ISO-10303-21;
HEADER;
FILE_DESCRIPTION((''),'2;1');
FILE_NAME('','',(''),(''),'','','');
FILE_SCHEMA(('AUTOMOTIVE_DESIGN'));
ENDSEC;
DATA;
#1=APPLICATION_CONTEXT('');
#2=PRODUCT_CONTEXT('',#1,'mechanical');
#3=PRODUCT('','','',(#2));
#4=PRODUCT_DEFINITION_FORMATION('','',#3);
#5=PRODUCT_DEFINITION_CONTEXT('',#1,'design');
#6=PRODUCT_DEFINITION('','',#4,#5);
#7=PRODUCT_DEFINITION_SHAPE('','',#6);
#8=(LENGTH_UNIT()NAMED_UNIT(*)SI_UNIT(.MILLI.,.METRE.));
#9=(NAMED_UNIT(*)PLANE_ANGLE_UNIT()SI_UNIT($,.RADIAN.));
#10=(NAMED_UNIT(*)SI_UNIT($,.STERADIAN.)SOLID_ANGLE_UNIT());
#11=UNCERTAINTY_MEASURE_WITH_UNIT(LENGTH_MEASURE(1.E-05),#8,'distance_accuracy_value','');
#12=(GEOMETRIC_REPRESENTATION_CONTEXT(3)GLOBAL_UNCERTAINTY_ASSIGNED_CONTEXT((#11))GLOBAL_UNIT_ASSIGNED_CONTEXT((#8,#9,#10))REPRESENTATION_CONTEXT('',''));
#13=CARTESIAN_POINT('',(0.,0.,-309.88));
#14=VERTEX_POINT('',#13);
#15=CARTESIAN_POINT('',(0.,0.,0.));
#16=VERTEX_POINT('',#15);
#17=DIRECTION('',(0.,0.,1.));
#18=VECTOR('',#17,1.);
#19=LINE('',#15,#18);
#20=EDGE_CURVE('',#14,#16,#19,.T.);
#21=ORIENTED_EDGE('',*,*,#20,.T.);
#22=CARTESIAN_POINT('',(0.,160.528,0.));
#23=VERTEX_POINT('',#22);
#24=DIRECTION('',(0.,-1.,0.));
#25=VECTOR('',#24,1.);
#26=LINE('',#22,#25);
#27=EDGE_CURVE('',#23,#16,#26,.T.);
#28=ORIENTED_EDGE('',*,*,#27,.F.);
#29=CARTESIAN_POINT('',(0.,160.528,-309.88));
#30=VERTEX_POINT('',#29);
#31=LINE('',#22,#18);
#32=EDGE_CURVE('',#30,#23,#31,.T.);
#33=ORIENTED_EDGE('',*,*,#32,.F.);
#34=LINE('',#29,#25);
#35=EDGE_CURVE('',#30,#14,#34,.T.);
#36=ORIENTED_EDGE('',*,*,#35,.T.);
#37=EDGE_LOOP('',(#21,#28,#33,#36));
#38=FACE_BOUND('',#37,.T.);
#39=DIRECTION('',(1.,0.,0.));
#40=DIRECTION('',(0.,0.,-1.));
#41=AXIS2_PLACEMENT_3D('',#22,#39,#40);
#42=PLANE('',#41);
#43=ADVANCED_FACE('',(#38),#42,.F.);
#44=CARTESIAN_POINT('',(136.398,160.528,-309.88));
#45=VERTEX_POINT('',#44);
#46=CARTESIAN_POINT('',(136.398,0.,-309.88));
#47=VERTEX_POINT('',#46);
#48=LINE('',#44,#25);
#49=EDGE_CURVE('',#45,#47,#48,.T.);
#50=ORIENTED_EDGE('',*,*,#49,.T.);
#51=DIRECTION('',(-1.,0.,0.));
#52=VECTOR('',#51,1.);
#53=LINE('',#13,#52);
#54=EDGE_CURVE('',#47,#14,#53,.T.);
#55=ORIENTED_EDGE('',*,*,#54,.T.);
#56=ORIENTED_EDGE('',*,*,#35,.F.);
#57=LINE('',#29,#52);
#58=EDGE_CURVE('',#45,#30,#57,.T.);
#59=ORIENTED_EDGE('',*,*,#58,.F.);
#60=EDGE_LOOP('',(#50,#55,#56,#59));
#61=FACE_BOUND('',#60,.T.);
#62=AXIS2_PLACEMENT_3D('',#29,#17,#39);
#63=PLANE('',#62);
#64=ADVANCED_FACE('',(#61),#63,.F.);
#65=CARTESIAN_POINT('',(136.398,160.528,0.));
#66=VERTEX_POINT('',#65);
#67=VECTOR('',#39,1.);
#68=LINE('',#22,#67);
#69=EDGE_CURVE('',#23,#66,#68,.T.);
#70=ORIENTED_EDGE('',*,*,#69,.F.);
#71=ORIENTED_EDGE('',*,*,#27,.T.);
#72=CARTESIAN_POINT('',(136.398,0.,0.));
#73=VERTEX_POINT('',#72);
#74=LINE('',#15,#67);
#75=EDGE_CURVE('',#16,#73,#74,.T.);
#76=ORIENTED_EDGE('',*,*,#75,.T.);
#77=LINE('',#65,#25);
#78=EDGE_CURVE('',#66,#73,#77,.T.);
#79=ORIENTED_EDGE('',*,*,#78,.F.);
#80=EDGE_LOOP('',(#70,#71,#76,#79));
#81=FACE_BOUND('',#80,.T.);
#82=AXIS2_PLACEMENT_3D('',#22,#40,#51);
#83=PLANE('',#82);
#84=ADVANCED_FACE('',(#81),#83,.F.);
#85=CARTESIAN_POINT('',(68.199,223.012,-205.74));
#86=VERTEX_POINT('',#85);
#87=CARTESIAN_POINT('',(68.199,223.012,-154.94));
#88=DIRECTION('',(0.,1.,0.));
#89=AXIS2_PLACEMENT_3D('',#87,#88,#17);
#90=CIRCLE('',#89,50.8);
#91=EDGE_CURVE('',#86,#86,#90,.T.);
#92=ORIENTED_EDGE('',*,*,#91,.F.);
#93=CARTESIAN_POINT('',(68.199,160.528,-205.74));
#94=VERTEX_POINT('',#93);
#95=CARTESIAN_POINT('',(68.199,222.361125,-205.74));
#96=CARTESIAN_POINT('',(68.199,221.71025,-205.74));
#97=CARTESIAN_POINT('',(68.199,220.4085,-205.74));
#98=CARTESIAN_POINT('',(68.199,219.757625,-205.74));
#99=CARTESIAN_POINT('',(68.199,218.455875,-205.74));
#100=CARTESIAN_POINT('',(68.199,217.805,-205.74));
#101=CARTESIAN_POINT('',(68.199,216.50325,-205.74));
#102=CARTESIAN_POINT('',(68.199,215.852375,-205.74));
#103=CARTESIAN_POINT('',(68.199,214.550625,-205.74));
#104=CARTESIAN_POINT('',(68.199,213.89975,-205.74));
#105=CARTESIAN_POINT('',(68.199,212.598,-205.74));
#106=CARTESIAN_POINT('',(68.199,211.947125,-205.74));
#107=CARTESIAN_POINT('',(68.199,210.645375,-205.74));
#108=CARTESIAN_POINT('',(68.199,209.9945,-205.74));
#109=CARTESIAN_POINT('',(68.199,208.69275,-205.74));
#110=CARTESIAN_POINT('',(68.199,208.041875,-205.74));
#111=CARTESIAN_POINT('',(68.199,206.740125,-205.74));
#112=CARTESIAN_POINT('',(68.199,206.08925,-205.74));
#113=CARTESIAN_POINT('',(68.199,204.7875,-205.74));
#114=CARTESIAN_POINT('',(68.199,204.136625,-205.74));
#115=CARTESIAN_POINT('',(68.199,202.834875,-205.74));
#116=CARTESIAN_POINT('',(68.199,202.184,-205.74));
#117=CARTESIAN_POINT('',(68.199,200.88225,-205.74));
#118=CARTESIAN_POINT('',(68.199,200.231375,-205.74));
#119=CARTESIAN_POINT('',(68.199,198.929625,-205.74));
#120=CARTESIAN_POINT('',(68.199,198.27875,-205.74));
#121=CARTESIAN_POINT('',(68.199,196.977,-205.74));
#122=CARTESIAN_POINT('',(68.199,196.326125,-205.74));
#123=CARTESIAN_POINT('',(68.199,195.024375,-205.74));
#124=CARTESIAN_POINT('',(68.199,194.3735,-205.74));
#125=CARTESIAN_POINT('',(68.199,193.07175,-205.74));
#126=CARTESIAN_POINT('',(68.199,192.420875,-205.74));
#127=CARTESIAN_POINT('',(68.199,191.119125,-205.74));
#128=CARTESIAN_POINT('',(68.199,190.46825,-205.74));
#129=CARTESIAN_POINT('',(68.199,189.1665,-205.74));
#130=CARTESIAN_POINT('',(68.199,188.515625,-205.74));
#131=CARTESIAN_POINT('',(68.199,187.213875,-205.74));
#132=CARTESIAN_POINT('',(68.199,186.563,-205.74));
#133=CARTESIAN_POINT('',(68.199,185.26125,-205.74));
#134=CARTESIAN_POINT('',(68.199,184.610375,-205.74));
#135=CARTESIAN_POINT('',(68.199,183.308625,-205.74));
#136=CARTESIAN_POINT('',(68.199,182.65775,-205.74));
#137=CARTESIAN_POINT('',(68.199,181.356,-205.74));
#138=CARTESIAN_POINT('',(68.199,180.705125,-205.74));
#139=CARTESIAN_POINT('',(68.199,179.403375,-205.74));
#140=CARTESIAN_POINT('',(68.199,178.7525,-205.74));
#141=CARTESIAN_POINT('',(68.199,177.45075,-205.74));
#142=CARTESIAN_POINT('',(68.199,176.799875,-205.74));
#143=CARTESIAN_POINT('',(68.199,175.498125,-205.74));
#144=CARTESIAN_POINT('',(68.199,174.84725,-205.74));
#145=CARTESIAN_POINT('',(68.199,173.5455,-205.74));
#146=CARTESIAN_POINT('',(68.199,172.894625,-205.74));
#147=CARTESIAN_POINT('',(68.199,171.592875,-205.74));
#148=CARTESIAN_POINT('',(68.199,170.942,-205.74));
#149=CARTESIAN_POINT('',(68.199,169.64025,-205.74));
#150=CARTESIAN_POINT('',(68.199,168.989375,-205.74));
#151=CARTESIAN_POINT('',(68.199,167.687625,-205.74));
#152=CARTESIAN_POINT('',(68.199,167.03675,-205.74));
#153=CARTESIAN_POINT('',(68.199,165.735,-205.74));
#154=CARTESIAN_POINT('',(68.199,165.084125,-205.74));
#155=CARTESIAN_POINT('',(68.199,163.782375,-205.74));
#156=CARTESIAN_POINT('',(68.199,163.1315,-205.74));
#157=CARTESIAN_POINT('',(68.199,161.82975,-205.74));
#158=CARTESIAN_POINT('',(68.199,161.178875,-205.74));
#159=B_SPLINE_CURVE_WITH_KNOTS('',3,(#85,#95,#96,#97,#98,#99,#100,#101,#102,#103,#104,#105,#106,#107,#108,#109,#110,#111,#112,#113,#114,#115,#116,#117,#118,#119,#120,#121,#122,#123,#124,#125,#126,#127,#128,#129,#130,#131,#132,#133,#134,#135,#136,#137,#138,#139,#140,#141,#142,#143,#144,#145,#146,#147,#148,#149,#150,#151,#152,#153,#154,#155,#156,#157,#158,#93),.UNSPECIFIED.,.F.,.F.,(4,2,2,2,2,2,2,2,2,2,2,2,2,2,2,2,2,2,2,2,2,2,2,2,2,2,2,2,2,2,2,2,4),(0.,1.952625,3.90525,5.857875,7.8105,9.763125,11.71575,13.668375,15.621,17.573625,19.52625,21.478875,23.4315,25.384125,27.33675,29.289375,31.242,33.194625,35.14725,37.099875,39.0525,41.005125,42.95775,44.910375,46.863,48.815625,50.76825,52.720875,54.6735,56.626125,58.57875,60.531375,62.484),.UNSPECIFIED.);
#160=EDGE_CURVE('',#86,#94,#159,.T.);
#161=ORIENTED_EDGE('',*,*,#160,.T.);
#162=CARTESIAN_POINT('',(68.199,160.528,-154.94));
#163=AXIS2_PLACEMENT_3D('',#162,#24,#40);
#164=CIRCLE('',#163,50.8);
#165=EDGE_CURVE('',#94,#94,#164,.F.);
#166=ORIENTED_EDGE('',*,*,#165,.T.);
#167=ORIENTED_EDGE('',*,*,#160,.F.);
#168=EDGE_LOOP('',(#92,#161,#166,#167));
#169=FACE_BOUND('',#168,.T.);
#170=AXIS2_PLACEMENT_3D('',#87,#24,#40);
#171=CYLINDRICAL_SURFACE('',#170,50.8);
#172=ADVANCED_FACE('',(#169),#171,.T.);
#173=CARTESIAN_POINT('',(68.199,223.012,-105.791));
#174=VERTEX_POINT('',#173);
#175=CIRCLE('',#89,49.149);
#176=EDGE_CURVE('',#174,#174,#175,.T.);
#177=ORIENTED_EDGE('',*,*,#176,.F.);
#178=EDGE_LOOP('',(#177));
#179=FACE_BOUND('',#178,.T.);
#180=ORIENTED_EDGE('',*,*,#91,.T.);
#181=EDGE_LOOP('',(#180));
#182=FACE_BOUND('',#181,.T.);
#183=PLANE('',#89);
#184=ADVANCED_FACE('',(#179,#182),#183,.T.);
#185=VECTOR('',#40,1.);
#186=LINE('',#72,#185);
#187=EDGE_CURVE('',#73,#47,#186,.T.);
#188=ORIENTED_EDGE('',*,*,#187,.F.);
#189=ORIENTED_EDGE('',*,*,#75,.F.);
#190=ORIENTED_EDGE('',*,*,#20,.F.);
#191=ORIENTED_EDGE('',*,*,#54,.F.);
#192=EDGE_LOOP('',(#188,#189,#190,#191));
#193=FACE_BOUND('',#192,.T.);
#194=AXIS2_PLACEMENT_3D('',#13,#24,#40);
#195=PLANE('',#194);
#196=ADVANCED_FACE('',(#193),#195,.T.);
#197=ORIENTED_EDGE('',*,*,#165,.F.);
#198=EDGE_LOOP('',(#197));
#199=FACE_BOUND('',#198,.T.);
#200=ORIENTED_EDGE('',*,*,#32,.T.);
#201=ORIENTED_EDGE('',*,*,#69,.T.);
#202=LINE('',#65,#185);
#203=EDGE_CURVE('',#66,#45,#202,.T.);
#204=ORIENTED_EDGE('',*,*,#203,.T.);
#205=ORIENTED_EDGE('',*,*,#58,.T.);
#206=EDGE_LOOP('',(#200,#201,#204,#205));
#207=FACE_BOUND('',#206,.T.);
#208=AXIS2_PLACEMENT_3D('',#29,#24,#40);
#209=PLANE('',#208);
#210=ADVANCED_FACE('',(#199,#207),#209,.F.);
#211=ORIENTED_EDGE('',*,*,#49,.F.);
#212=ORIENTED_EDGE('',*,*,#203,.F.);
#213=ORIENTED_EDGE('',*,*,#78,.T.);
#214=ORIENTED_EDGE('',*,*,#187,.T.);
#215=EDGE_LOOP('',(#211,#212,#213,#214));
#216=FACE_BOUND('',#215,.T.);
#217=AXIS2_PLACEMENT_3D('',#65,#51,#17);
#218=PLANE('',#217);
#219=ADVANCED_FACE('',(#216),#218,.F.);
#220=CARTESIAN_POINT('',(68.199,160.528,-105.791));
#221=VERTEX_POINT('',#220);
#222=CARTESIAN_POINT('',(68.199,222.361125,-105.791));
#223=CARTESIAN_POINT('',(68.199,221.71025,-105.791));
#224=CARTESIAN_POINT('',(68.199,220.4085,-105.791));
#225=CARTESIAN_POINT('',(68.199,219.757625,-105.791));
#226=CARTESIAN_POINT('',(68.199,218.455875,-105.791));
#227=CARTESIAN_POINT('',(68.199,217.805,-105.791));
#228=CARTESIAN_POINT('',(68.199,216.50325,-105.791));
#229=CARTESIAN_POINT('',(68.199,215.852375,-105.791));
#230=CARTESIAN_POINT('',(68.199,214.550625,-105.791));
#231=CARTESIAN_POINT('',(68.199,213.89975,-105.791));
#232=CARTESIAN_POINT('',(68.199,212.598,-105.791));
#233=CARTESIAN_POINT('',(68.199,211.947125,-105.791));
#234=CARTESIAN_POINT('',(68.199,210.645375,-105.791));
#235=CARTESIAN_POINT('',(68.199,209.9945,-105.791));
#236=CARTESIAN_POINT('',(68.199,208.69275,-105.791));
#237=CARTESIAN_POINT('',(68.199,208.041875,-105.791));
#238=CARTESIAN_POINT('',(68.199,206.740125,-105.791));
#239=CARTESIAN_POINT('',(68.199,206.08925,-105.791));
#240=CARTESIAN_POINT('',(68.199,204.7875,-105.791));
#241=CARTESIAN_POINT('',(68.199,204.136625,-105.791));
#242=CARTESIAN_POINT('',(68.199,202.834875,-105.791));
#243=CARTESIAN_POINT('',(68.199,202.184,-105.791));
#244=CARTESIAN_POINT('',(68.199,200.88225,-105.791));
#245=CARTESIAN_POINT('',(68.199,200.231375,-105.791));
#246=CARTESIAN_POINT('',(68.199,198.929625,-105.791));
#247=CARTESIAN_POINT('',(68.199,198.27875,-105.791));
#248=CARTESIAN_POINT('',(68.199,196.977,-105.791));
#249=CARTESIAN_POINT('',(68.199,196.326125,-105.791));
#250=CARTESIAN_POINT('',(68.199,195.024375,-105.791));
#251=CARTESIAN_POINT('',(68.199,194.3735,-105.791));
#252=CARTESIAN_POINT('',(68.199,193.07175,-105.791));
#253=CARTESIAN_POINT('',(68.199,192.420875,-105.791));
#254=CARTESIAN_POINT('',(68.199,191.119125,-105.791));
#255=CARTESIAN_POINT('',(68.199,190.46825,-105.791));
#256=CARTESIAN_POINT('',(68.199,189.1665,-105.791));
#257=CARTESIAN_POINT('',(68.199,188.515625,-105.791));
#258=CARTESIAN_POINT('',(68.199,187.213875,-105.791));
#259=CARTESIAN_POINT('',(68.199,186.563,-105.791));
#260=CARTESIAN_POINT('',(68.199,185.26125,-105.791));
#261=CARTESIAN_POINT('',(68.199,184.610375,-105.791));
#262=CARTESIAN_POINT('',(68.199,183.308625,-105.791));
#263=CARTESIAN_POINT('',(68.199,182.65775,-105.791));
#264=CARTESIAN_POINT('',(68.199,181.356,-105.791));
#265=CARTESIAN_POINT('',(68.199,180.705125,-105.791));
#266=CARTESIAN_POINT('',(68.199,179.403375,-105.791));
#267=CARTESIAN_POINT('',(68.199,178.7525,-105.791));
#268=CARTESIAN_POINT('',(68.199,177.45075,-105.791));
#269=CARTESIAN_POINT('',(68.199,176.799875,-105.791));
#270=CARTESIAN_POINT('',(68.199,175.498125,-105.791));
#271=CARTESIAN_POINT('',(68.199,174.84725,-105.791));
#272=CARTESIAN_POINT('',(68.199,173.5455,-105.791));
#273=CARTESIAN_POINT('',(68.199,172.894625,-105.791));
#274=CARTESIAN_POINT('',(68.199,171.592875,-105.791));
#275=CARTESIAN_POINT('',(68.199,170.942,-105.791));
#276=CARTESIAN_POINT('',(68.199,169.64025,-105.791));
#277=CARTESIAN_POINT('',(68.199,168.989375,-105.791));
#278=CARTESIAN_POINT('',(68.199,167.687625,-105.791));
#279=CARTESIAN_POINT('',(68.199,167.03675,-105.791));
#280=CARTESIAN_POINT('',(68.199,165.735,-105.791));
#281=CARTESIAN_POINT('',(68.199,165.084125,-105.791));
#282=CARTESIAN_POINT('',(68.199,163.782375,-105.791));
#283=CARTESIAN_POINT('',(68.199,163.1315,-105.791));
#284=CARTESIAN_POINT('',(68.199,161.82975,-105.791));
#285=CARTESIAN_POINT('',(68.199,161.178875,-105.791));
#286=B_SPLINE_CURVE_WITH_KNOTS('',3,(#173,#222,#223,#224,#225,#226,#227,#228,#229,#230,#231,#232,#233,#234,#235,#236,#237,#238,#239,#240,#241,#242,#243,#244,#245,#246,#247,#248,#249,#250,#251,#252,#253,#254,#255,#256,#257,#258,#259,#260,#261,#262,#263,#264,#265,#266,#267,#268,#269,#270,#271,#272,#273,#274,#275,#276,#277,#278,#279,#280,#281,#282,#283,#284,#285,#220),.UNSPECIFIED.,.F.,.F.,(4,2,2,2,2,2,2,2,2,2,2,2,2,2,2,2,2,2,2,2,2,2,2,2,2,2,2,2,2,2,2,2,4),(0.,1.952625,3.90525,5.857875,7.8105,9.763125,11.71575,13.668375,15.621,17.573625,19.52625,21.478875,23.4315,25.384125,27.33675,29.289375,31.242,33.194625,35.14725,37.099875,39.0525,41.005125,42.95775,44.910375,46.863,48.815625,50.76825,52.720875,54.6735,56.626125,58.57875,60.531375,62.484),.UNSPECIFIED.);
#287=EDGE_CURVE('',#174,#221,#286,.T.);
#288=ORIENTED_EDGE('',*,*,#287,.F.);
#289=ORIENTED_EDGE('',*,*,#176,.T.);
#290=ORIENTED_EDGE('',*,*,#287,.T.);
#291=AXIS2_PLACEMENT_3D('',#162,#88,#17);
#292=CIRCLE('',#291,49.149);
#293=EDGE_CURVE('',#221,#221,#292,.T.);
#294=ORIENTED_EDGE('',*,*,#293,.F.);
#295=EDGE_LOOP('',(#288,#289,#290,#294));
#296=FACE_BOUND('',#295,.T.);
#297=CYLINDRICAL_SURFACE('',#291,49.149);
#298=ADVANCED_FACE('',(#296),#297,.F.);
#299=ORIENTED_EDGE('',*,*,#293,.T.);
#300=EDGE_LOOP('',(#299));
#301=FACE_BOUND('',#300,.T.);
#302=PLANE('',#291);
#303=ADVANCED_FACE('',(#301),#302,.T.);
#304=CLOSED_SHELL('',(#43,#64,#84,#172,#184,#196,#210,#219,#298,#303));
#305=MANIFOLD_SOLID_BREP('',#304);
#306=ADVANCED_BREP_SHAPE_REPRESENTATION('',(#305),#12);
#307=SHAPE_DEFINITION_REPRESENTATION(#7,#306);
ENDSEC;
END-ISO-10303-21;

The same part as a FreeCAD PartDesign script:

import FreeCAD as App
import Part
import Sketcher
from FreeCAD import Vector
Q = App.Units.Quantity

doc = App.newDocument("Part")
body = doc.addObject("PartDesign::Body", "Body")

sketch1 = body.newObject("Sketcher::SketchObject", "Sketch")
sketch1.AttachmentSupport = (doc.getObject("XZ_Plane"), [""])
sketch1.MapMode = "FlatFace"
sketch1.addGeometry([
    Part.LineSegment(Vector(0, -309.88, 0), Vector(0, 0, 0)),
    Part.LineSegment(Vector(0, 0, 0), Vector(136.398, 0, 0)),
    Part.LineSegment(Vector(136.398, 0, 0), Vector(136.398, -309.88, 0)),
    Part.LineSegment(Vector(136.398, -309.88, 0), Vector(0, -309.88, 0)),
], False)
sketch1.addConstraint([
    Sketcher.Constraint("Coincident", 0, 2, 1, 1),
    Sketcher.Constraint("Coincident", 1, 2, 2, 1),
    Sketcher.Constraint("Coincident", 2, 2, 3, 1),
    Sketcher.Constraint("Coincident", 3, 2, 0, 1),
    Sketcher.Constraint("Vertical", 0),
    Sketcher.Constraint("Horizontal", 1),
    Sketcher.Constraint("Vertical", 2),
    Sketcher.Constraint("Horizontal", 3),
    Sketcher.Constraint("Coincident", 0, 2, -1, 1),
    Sketcher.Constraint("DistanceY", 0, 1, 0, 2, Q("12.2 in")),
    Sketcher.Constraint("DistanceX", 1, 1, 1, 2, Q("5.37 in")),
])
pad1 = body.newObject("PartDesign::Pad", "Pad")
pad1.Profile = sketch1
pad1.Length = Q("6.32 in")
pad1.Reversed = True

sketch2 = body.newObject("Sketcher::SketchObject", "Sketch001")
sketch2.AttachmentSupport = (doc.getObject("XZ_Plane"), [""])
sketch2.MapMode = "FlatFace"
sketch2.AttachmentOffset = App.Placement(Vector(0, 0, -6.32 * 25.4), App.Rotation())
sketch2.addGeometry(Part.Circle(Vector(68.199, -154.94, 0), Vector(0, 0, 1), 50.8), False)
sketch2.addConstraint([
    Sketcher.Constraint("Diameter", 0, Q("4 in")),
    Sketcher.Constraint("DistanceY", 0, 3, -1, 1, Q("6.1 in")),
    Sketcher.Constraint("DistanceX", -1, 1, 0, 3, Q("2.685 in")),
])
pad2 = body.newObject("PartDesign::Pad", "Pad001")
pad2.Profile = sketch2
pad2.Length = Q("2.46 in")
pad2.Reversed = True

sketch3 = body.newObject("Sketcher::SketchObject", "Sketch002")
sketch3.AttachmentSupport = (doc.getObject("XZ_Plane"), [""])
sketch3.MapMode = "FlatFace"
sketch3.AttachmentOffset = App.Placement(Vector(0, 0, -8.78 * 25.4), App.Rotation())
sketch3.addGeometry(Part.Circle(Vector(68.199, -154.94, 0), Vector(0, 0, 1), 49.149), False)
sketch3.addConstraint([
    Sketcher.Constraint("Diameter", 0, Q("3.87 in")),
    Sketcher.Constraint("DistanceY", 0, 3, -1, 1, Q("6.1 in")),
    Sketcher.Constraint("DistanceX", -1, 1, 0, 3, Q("2.685 in")),
])
pocket1 = body.newObject("PartDesign::Pocket", "Pocket")
pocket1.Profile = sketch3
pocket1.Type = "TwoLengths"
pocket1.Length = Q("0.75 in")
pocket1.Length2 = Q("2.46 in")

doc.recompute()
